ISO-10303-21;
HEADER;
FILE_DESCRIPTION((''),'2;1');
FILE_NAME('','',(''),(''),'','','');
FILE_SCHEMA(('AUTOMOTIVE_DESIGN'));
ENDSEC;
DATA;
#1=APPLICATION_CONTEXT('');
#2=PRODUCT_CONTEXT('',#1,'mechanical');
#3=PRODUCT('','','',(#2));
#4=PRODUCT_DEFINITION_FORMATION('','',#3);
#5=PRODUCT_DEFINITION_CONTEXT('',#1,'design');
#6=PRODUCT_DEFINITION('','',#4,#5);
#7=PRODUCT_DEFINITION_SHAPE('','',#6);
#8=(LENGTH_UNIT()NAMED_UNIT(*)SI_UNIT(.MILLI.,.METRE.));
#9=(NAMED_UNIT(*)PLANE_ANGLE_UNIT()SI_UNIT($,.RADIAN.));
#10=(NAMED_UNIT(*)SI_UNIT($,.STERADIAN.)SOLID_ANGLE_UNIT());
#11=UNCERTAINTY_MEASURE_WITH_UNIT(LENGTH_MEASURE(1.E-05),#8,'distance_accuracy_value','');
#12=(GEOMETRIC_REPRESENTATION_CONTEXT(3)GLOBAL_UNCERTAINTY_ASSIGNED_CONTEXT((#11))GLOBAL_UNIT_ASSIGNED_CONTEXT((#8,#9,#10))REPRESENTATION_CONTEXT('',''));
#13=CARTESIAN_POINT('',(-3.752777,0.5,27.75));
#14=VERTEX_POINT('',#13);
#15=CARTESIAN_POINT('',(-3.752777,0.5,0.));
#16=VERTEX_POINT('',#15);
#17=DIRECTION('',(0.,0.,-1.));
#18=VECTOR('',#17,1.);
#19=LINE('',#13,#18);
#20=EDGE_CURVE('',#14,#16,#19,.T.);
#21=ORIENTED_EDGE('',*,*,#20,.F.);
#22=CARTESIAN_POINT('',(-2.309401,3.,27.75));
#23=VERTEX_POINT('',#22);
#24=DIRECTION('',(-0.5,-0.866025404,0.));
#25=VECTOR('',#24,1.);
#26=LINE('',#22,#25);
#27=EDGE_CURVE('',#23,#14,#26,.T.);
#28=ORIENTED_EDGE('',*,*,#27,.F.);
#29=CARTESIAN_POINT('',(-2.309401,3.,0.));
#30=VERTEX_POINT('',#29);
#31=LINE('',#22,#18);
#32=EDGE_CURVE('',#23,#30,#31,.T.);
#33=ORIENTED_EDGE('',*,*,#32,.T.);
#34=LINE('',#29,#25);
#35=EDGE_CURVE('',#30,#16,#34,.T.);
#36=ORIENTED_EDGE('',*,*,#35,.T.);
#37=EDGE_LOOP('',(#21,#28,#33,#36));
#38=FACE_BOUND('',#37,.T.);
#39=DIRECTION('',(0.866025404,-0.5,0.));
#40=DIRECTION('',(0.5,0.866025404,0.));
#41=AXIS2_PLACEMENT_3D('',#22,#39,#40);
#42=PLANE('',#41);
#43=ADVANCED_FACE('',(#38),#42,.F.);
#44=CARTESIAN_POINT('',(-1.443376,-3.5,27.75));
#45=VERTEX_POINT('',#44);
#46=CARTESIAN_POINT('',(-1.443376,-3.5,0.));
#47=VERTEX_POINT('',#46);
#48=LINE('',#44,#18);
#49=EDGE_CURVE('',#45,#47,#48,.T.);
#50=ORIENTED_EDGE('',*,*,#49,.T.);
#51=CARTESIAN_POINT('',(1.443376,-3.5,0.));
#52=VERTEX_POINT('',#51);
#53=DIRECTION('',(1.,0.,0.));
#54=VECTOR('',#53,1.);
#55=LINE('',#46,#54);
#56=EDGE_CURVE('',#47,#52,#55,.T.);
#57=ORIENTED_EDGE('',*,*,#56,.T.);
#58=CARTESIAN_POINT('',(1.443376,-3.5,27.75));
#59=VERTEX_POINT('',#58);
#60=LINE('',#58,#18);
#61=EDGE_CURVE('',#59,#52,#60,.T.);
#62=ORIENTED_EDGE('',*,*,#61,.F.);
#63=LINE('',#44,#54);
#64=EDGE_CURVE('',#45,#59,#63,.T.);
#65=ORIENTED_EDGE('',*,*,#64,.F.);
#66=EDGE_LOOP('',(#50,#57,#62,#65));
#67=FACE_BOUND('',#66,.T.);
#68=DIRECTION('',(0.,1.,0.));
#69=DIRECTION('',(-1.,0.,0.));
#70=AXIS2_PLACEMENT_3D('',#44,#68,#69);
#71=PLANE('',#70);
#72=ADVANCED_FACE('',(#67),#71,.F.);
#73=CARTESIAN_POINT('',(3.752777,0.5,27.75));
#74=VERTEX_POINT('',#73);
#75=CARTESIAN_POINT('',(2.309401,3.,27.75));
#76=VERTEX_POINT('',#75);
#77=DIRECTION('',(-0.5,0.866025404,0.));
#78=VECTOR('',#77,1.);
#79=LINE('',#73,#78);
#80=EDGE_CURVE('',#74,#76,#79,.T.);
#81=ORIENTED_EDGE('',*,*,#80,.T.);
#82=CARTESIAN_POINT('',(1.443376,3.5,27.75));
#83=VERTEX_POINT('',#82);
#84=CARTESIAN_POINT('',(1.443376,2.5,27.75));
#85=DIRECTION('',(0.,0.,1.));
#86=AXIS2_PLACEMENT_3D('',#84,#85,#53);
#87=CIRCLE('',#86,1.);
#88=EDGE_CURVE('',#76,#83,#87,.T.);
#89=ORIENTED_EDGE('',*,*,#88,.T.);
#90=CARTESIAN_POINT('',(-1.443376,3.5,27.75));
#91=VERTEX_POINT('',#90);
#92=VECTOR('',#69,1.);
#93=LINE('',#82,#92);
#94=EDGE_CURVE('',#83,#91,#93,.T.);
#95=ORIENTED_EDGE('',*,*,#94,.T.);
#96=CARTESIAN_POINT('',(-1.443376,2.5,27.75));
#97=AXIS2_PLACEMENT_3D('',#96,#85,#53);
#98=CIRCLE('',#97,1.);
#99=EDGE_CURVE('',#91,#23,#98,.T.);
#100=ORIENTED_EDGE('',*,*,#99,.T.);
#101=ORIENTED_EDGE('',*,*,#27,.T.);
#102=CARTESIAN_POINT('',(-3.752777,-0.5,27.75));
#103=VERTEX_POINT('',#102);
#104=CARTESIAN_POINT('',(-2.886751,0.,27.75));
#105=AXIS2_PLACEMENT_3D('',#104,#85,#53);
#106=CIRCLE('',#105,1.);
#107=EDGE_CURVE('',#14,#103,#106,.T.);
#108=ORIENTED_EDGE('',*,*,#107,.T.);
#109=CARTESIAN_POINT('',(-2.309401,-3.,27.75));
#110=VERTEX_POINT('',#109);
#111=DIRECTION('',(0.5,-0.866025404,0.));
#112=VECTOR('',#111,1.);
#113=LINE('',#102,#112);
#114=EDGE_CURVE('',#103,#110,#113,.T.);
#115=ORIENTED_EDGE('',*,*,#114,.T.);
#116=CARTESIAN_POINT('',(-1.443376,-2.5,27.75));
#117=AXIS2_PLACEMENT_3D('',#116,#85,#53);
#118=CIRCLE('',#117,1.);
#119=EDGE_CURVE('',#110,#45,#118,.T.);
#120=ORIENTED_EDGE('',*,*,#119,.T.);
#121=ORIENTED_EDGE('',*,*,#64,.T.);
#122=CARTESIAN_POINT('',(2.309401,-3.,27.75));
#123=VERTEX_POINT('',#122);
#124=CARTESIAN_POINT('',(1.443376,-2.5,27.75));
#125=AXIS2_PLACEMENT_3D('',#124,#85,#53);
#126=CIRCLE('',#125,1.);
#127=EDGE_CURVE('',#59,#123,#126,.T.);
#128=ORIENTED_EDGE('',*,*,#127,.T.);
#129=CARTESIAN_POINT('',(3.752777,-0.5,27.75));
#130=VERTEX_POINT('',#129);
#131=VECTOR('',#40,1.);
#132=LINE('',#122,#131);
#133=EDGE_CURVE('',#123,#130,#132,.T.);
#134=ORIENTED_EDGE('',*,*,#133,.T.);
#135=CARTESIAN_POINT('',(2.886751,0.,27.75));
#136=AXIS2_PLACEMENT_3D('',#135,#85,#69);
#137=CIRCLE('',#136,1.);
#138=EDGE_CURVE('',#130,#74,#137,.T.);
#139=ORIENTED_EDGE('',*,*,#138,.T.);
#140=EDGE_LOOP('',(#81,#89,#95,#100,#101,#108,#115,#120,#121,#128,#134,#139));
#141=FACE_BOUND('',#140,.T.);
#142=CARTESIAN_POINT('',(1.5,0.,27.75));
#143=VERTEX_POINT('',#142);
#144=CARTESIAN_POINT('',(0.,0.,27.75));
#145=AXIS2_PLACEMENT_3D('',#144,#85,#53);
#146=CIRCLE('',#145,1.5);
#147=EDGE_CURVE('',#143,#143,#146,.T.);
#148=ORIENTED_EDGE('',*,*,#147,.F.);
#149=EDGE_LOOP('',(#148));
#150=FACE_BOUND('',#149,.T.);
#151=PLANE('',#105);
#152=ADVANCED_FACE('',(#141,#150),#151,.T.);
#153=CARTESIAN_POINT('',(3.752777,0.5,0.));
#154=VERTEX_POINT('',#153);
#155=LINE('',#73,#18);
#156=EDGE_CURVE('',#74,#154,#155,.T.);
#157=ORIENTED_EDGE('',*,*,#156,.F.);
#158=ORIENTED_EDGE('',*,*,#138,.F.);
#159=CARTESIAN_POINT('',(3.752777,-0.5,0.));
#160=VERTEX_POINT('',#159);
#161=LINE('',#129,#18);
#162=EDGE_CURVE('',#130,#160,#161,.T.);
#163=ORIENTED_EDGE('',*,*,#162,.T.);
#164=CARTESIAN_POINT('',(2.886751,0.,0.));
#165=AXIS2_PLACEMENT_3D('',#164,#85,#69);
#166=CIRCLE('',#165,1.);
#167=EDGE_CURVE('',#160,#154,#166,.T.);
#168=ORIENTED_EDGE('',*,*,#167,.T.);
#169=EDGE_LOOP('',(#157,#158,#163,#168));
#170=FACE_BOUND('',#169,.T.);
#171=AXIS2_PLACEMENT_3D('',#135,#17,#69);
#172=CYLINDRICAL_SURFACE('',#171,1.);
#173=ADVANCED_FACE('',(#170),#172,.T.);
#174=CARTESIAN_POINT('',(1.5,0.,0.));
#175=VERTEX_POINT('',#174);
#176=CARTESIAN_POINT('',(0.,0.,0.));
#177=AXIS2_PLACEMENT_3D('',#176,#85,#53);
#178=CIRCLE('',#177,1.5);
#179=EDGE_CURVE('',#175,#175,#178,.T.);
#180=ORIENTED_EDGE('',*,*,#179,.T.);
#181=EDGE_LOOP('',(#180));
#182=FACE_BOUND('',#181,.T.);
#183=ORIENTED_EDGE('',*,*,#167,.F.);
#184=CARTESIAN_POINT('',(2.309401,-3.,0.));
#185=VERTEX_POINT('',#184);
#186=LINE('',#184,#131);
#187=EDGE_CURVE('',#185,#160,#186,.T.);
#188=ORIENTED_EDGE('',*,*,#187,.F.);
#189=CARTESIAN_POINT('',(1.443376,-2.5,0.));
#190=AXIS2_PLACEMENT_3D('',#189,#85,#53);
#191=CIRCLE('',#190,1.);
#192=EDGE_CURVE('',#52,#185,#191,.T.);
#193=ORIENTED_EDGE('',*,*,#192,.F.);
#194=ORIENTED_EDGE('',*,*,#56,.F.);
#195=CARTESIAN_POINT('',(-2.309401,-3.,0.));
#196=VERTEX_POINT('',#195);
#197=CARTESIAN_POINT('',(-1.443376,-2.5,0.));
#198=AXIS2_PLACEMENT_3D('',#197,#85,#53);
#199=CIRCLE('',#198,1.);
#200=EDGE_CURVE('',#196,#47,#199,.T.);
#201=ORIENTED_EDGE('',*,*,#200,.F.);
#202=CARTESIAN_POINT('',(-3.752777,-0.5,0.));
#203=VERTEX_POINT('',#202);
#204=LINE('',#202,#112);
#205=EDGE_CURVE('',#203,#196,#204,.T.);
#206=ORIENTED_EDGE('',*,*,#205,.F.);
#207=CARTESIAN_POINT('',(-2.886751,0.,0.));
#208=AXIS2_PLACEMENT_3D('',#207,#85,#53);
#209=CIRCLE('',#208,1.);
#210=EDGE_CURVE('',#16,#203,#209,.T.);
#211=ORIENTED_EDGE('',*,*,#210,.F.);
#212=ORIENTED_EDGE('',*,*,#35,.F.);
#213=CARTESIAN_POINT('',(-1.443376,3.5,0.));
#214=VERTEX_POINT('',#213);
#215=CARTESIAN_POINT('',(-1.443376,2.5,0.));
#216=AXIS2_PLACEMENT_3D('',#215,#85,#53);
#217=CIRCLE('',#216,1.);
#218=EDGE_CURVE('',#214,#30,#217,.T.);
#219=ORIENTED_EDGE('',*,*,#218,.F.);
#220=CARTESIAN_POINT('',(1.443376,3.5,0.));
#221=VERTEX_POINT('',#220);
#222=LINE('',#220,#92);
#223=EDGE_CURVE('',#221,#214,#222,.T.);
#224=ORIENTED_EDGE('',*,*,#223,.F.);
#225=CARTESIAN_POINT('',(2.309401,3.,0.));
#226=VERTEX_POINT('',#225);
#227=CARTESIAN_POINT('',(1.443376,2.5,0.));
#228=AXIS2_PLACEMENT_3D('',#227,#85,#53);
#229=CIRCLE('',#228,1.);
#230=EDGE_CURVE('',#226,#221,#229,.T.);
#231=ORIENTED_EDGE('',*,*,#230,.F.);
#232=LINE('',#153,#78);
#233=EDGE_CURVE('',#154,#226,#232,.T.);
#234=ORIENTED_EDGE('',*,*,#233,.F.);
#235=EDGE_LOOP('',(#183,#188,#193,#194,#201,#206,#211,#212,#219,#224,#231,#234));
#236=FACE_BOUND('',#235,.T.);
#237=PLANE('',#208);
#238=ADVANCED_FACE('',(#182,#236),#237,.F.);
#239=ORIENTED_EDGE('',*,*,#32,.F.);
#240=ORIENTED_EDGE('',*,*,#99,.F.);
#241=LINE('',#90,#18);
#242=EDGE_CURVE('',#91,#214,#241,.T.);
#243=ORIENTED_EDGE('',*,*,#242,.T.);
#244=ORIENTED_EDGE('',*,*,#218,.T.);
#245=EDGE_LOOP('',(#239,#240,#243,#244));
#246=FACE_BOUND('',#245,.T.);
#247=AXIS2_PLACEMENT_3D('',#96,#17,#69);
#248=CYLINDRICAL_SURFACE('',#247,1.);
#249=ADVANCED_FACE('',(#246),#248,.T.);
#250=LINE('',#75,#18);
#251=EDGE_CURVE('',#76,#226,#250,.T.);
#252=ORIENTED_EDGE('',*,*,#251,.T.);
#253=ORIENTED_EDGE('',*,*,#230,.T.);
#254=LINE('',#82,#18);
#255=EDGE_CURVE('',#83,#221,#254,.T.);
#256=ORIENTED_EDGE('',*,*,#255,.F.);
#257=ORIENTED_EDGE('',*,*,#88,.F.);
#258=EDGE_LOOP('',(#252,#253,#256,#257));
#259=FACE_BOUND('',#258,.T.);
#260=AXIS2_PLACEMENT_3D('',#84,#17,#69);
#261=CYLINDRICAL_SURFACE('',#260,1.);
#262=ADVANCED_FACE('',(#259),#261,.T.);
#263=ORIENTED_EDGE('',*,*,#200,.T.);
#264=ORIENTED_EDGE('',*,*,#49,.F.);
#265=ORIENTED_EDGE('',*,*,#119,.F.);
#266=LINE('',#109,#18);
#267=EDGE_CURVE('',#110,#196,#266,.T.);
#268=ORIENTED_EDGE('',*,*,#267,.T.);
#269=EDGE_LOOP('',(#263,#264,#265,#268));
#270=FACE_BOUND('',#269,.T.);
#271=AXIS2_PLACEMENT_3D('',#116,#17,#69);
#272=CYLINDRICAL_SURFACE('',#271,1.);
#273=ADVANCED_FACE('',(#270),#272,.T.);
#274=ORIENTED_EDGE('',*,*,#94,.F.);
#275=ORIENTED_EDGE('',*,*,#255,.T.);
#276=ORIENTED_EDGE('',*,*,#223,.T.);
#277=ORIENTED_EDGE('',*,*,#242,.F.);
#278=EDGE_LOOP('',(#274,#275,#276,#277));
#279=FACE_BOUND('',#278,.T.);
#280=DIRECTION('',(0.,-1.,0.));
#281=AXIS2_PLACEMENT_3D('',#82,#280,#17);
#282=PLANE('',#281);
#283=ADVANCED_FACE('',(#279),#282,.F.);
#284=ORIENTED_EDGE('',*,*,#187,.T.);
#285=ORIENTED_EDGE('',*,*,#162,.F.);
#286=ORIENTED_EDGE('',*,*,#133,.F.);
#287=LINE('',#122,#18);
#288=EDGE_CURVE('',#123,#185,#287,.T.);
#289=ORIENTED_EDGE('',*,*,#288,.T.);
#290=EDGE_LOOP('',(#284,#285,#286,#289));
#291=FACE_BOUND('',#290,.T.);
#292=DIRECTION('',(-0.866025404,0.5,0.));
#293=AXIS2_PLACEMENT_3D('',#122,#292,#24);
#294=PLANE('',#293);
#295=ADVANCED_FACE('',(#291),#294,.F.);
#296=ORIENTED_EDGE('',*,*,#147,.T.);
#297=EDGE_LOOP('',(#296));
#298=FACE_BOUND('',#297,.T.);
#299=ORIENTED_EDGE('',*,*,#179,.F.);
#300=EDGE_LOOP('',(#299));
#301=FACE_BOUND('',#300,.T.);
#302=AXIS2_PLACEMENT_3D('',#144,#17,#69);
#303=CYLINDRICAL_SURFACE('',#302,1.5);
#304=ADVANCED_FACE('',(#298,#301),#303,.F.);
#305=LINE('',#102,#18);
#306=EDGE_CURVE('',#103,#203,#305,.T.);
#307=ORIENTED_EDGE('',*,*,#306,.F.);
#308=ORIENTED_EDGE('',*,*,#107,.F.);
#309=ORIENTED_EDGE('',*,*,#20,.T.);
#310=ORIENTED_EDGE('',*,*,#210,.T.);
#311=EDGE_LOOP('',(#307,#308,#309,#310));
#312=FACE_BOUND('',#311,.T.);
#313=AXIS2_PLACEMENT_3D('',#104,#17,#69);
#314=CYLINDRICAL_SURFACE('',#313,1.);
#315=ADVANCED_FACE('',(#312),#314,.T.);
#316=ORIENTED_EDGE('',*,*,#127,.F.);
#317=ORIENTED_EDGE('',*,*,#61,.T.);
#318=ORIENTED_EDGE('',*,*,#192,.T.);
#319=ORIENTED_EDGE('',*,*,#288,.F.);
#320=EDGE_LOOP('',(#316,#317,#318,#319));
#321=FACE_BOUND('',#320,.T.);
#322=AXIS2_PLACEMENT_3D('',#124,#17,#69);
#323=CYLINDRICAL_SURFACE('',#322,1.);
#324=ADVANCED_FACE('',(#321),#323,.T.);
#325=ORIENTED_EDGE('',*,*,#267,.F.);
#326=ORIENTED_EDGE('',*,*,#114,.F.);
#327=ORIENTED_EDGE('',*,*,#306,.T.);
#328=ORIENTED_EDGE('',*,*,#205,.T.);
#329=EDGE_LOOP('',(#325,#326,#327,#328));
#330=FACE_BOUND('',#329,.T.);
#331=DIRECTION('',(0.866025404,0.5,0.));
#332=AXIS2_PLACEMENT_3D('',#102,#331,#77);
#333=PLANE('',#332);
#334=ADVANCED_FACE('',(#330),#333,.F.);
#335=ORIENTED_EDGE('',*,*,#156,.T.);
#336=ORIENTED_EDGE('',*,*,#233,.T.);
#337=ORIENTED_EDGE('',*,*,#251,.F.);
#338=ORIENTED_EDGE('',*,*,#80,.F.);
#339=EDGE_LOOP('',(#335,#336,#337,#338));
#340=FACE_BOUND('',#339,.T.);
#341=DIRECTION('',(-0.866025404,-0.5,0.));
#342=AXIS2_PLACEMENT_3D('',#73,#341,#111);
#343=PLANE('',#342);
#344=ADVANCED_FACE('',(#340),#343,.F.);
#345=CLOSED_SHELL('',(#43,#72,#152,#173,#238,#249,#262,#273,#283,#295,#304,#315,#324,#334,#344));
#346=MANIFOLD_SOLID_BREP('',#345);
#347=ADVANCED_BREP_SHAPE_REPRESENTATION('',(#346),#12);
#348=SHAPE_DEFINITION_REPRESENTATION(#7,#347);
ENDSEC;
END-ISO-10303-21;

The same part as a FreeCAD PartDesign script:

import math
import FreeCAD as App
import Part
import Sketcher
from FreeCAD import Vector
Q = App.Units.Quantity

doc = App.newDocument("Part")
params = doc.addObject("Spreadsheet::Sheet", "Params")
for row, (alias, value) in enumerate([
    ("sketch1_diameter", "3 mm"),
    ("sketch1_radius", "1 mm"),
    ("pad1_length", "27.75 mm"),
], start=1):
    params.set(f"A{row}", alias)
    params.set(f"B{row}", "=" + value)
    params.setAlias(f"B{row}", alias)

body = doc.addObject("PartDesign::Body", "Body")

sketch1 = body.newObject("Sketcher::SketchObject", "Sketch")
sketch1.AttachmentSupport = (doc.getObject("XY_Plane"), [""])
sketch1.MapMode = "FlatFace"
sketch1.addGeometry([
    Part.LineSegment(Vector(3.8, 0.5, 0), Vector(2.3, 3, 0)),
    Part.ArcOfCircle(Part.Circle(Vector(1.4, 2.5, 0), Vector(0, 0, 1), 1), math.radians(30), math.radians(90)),
    Part.LineSegment(Vector(1.4, 3.5, 0), Vector(-1.4, 3.5, 0)),
    Part.ArcOfCircle(Part.Circle(Vector(-1.4, 2.5, 0), Vector(0, 0, 1), 1), math.radians(90), math.radians(150)),
    Part.LineSegment(Vector(-2.3, 3, 0), Vector(-3.8, 0.5, 0)),
    Part.ArcOfCircle(Part.Circle(Vector(-2.9, 0, 0), Vector(0, 0, 1), 1), math.radians(150), math.radians(210)),
    Part.LineSegment(Vector(-3.8, -0.5, 0), Vector(-2.3, -3, 0)),
    Part.ArcOfCircle(Part.Circle(Vector(-1.4, -2.5, 0), Vector(0, 0, 1), 1), math.radians(-150), math.radians(-90)),
    Part.LineSegment(Vector(-1.4, -3.5, 0), Vector(1.4, -3.5, 0)),
    Part.ArcOfCircle(Part.Circle(Vector(1.4, -2.5, 0), Vector(0, 0, 1), 1), math.radians(-90), math.radians(-30)),
    Part.LineSegment(Vector(2.3, -3, 0), Vector(3.8, -0.5, 0)),
    Part.ArcOfCircle(Part.Circle(Vector(2.9, 0, 0), Vector(0, 0, 1), 1), math.radians(-30), math.radians(30)),
    Part.Circle(Vector(0, 0, 0), Vector(0, 0, 1), 1.5),
], False)
sketch1.addConstraint([
    Sketcher.Constraint("Tangent", 0, 2, 1, 1),
    Sketcher.Constraint("Tangent", 1, 2, 2, 1),
    Sketcher.Constraint("Tangent", 2, 2, 3, 1),
    Sketcher.Constraint("Tangent", 3, 2, 4, 1),
    Sketcher.Constraint("Tangent", 4, 2, 5, 1),
    Sketcher.Constraint("Tangent", 5, 2, 6, 1),
    Sketcher.Constraint("Tangent", 6, 2, 7, 1),
    Sketcher.Constraint("Tangent", 7, 2, 8, 1),
    Sketcher.Constraint("Tangent", 8, 2, 9, 1),
    Sketcher.Constraint("Tangent", 9, 2, 10, 1),
    Sketcher.Constraint("Tangent", 10, 2, 11, 1),
    Sketcher.Constraint("Tangent", 11, 2, 0, 1),
    Sketcher.Constraint("Horizontal", 2),
    Sketcher.Constraint("Horizontal", 8),
    Sketcher.Constraint("Coincident", 12, 3, -1, 1),
    Sketcher.Constraint("Equal", 1, 3),
    Sketcher.Constraint("Equal", 3, 5),
    Sketcher.Constraint("Equal", 5, 7),
    Sketcher.Constraint("Equal", 7, 9),
    Sketcher.Constraint("Equal", 9, 11),
    Sketcher.Constraint("Symmetric", 1, 3, 7, 3, -1, 1),
    Sketcher.Constraint("Symmetric", 5, 3, 11, 3, -1, 1),
    Sketcher.Constraint("Symmetric", 0, 2, 3, 2, -2),
    Sketcher.Constraint("Parallel", 4, 10),
    Sketcher.Constraint("Diameter", 12, 3.0),
    Sketcher.Constraint("Radius", 1, 1.0),
    Sketcher.Constraint("Angle", 0, Q("120 deg")),
    Sketcher.Constraint("DistanceY", -1, 1, 0, 2, 3.0),
    Sketcher.Constraint("DistanceX", 2, 2, 2, 1, 2.886751),
])
sketch1.setExpression("Constraints[24]", "Params.sketch1_diameter")
sketch1.setExpression("Constraints[25]", "Params.sketch1_radius")
pad1 = body.newObject("PartDesign::Pad", "Pad")
pad1.Profile = sketch1
pad1.setExpression("Length", "Params.pad1_length")

doc.recompute()
